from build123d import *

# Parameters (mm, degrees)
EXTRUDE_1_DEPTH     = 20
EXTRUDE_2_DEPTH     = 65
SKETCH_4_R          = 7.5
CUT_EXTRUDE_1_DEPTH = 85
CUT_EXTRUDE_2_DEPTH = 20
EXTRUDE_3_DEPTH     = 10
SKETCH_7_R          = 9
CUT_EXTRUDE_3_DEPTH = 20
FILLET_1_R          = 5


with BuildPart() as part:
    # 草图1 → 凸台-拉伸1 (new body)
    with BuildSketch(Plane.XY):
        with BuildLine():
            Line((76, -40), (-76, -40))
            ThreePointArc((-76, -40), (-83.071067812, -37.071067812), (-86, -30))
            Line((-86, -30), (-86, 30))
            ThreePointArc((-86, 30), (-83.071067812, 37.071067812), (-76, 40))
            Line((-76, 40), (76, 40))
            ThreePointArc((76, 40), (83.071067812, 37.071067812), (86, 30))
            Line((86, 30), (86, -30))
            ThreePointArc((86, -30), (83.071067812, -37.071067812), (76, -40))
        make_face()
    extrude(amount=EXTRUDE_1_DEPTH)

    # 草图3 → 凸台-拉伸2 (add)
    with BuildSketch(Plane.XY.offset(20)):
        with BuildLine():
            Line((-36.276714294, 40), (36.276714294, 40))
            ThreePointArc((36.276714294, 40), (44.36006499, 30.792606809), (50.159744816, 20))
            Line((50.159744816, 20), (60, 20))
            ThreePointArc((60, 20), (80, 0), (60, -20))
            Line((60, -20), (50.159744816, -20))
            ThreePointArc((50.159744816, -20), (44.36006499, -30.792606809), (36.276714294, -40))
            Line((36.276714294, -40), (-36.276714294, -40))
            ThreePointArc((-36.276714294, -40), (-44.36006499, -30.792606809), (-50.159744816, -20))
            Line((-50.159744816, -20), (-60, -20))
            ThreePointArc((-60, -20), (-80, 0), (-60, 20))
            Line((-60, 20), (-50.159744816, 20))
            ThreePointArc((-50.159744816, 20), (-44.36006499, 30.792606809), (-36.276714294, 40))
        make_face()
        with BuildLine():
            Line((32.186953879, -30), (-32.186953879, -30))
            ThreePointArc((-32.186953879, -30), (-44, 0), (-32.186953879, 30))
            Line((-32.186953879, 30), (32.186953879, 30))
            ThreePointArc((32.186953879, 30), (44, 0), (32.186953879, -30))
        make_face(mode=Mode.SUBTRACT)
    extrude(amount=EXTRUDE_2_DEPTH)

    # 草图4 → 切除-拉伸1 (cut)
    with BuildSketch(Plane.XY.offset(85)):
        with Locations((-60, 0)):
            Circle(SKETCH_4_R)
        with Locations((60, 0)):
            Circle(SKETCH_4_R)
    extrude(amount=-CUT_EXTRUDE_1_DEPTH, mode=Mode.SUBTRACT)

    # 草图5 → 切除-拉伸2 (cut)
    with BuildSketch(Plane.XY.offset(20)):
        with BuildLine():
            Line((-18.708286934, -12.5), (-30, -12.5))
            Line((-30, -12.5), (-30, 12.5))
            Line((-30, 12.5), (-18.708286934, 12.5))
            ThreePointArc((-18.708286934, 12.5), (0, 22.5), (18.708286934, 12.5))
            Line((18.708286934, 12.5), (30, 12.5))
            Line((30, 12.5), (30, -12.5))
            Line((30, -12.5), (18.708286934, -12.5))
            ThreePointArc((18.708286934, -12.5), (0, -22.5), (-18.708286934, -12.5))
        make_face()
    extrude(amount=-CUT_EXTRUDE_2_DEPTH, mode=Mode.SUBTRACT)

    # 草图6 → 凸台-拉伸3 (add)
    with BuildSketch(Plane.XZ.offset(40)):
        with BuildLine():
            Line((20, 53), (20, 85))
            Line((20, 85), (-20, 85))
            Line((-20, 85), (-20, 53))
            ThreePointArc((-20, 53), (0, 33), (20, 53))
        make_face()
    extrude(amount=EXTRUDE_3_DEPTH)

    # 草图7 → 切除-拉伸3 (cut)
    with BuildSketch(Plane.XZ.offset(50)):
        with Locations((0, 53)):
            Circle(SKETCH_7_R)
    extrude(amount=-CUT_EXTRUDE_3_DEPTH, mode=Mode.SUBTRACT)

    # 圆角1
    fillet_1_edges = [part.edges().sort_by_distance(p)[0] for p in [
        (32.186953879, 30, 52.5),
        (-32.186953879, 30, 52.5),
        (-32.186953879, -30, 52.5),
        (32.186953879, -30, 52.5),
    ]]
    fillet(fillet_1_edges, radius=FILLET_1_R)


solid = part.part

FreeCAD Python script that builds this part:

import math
import FreeCAD as App
import Part
import Sketcher
Q = App.Units.Quantity


def edges_at(feature, points):
    """Names of the edges that pass closest to the given points."""
    edges = feature.Shape.Edges
    near = lambda p: min(range(len(edges)), key=lambda i: edges[i].distToShape(Part.Vertex(*p))[0])
    return sorted({f"Edge{near(p) + 1}" for p in points})

doc = App.newDocument("Part")
body = doc.addObject("PartDesign::Body", "Body")

# Sketch on XY plane
sketch1 = doc.addObject("Sketcher::SketchObject", "Sketch")
body.addObject(sketch1)
sketch1.AttachmentSupport = (doc.XY_Plane, [""])
sketch1.MapMode = "FlatFace"
sketch1.addGeometry([
    Part.LineSegment(App.Vector(-76, -40, 0), App.Vector(76, -40, 0)),  # 0
    Part.ArcOfCircle(Part.Circle(App.Vector(76, -30, 0), App.Vector(0, 0, 1), 10), math.radians(-90), math.radians(0)),  # 1
    Part.LineSegment(App.Vector(86, -30, 0), App.Vector(86, 30, 0)),  # 2
    Part.ArcOfCircle(Part.Circle(App.Vector(76, 30, 0), App.Vector(0, 0, 1), 10), math.radians(0), math.radians(90)),  # 3
    Part.LineSegment(App.Vector(76, 40, 0), App.Vector(-76, 40, 0)),  # 4
    Part.ArcOfCircle(Part.Circle(App.Vector(-76, 30, 0), App.Vector(0, 0, 1), 10), math.radians(90), math.radians(180)),  # 5
    Part.LineSegment(App.Vector(-86, 30, 0), App.Vector(-86, -30, 0)),  # 6
    Part.ArcOfCircle(Part.Circle(App.Vector(-76, -30, 0), App.Vector(0, 0, 1), 10), math.radians(180), math.radians(270)),  # 7
], False)
sketch1.addConstraint([
    Sketcher.Constraint("Tangent", 0, 2, 1, 1),
    Sketcher.Constraint("Tangent", 1, 2, 2, 1),
    Sketcher.Constraint("Tangent", 2, 2, 3, 1),
    Sketcher.Constraint("Tangent", 3, 2, 4, 1),
    Sketcher.Constraint("Tangent", 4, 2, 5, 1),
    Sketcher.Constraint("Tangent", 5, 2, 6, 1),
    Sketcher.Constraint("Tangent", 6, 2, 7, 1),
    Sketcher.Constraint("Tangent", 7, 2, 0, 1),
    Sketcher.Constraint("Horizontal", 0),
    Sketcher.Constraint("Vertical", 2),
    Sketcher.Constraint("Horizontal", 4),
    Sketcher.Constraint("Vertical", 6),
    Sketcher.Constraint("Equal", 1, 3),
    Sketcher.Constraint("Equal", 3, 5),
    Sketcher.Constraint("Equal", 5, 7),
    Sketcher.Constraint("Symmetric", 1, 3, 5, 3, -1, 1),
    Sketcher.Constraint("Radius", 1, Q("10 mm")),
    Sketcher.Constraint("DistanceX", 0, 1, 0, 2, Q("152 mm")),
    Sketcher.Constraint("DistanceY", 2, 1, 2, 2, Q("60 mm")),
])
pad1 = doc.addObject("PartDesign::Pad", "Pad")
body.addObject(pad1)
pad1.Profile = sketch1
pad1.Length = 20

# Sketch on XY plane
sketch2 = doc.addObject("Sketcher::SketchObject", "Sketch001")
body.addObject(sketch2)
sketch2.AttachmentSupport = (doc.XY_Plane, [""])
sketch2.MapMode = "FlatFace"
sketch2.AttachmentOffset = App.Placement(App.Vector(0, 0, 20), App.Rotation())
sketch2.addGeometry([
    Part.LineSegment(App.Vector(36, 40, 0), App.Vector(-36, 40, 0)),  # 0
    Part.ArcOfCircle(Part.Circle(App.Vector(0, 0, 0), App.Vector(0, 0, 1), 54), math.radians(132), math.radians(158)),  # 1
    Part.LineSegment(App.Vector(-50, 20, 0), App.Vector(-60, 20, 0)),  # 2
    Part.ArcOfCircle(Part.Circle(App.Vector(-60, 0, 0), App.Vector(0, 0, 1), 20), math.radians(90), math.radians(270)),  # 3
    Part.LineSegment(App.Vector(-60, -20, 0), App.Vector(-50, -20, 0)),  # 4
    Part.ArcOfCircle(Part.Circle(App.Vector(0, 0, 0), App.Vector(0, 0, 1), 54), math.radians(-158), math.radians(-132)),  # 5
    Part.LineSegment(App.Vector(-36, -40, 0), App.Vector(36, -40, 0)),  # 6
    Part.ArcOfCircle(Part.Circle(App.Vector(0, 0, 0), App.Vector(0, 0, 1), 54), math.radians(-48), math.radians(-22)),  # 7
    Part.LineSegment(App.Vector(50, -20, 0), App.Vector(60, -20, 0)),  # 8
    Part.ArcOfCircle(Part.Circle(App.Vector(60, 0, 0), App.Vector(0, 0, 1), 20), math.radians(-90), math.radians(90)),  # 9
    Part.LineSegment(App.Vector(60, 20, 0), App.Vector(50, 20, 0)),  # 10
    Part.ArcOfCircle(Part.Circle(App.Vector(0, 0, 0), App.Vector(0, 0, 1), 54), math.radians(22), math.radians(48)),  # 11
    Part.LineSegment(App.Vector(32, -30, 0), App.Vector(-32, -30, 0)),  # 12
    Part.ArcOfCircle(Part.Circle(App.Vector(0, 0, 0), App.Vector(0, 0, 1), 44), math.radians(137), math.radians(223)),  # 13
    Part.LineSegment(App.Vector(-32, 30, 0), App.Vector(32, 30, 0)),  # 14
    Part.ArcOfCircle(Part.Circle(App.Vector(0, 0, 0), App.Vector(0, 0, 1), 44), math.radians(-43), math.radians(43)),  # 15
], False)
sketch2.addConstraint([
    Sketcher.Constraint("Coincident", 0, 2, 1, 1),
    Sketcher.Constraint("Coincident", 1, 2, 2, 1),
    Sketcher.Constraint("Tangent", 2, 2, 3, 1),
    Sketcher.Constraint("Tangent", 3, 2, 4, 1),
    Sketcher.Constraint("Coincident", 4, 2, 5, 1),
    Sketcher.Constraint("Coincident", 5, 2, 6, 1),
    Sketcher.Constraint("Coincident", 6, 2, 7, 1),
    Sketcher.Constraint("Coincident", 7, 2, 8, 1),
    Sketcher.Constraint("Tangent", 8, 2, 9, 1),
    Sketcher.Constraint("Tangent", 9, 2, 10, 1),
    Sketcher.Constraint("Coincident", 10, 2, 11, 1),
    Sketcher.Constraint("Coincident", 11, 2, 0, 1),
    Sketcher.Constraint("Coincident", 12, 2, 13, 2),
    Sketcher.Constraint("Coincident", 13, 1, 14, 1),
    Sketcher.Constraint("Coincident", 14, 2, 15, 2),
    Sketcher.Constraint("Coincident", 15, 1, 12, 1),
    Sketcher.Constraint("Horizontal", 0),
    Sketcher.Constraint("Horizontal", 2),
    Sketcher.Constraint("Horizontal", 4),
    Sketcher.Constraint("Horizontal", 6),
    Sketcher.Constraint("Horizontal", 8),
    Sketcher.Constraint("Horizontal", 10),
    Sketcher.Constraint("Horizontal", 12),
    Sketcher.Constraint("Horizontal", 14),
    Sketcher.Constraint("Coincident", 1, 3, -1, 1),
    Sketcher.Constraint("Coincident", 5, 3, -1, 1),
    Sketcher.Constraint("Coincident", 7, 3, -1, 1),
    Sketcher.Constraint("Coincident", 11, 3, -1, 1),
    Sketcher.Constraint("Coincident", 13, 3, -1, 1),
    Sketcher.Constraint("Coincident", 15, 3, -1, 1),
    Sketcher.Constraint("Equal", 1, 5),
    Sketcher.Constraint("Equal", 5, 7),
    Sketcher.Constraint("Equal", 3, 9),
    Sketcher.Constraint("Equal", 7, 11),
    Sketcher.Constraint("Equal", 13, 15),
    Sketcher.Constraint("Symmetric", 3, 3, 9, 3, -1, 1),
    Sketcher.Constraint("PointOnObject", 3, 3, -1),
    Sketcher.Constraint("Vertical", 0, 2, 5, 2),
    Sketcher.Constraint("Vertical", 12, 2, 13, 1),
    Sketcher.Constraint("Radius", 1, Q("54 mm")),
    Sketcher.Constraint("Radius", 3, Q("20 mm")),
    Sketcher.Constraint("Radius", 13, Q("44 mm")),
    Sketcher.Constraint("DistanceX", 3, 3, -1, 1, Q("60 mm")),
    Sketcher.Constraint("DistanceY", -1, 1, 0, 2, Q("40 mm")),
    Sketcher.Constraint("DistanceY", 12, 2, -1, 1, Q("30 mm")),
])
pad2 = doc.addObject("PartDesign::Pad", "Pad001")
body.addObject(pad2)
pad2.Profile = sketch2
pad2.Length = 65

# Sketch on XY plane
sketch3 = doc.addObject("Sketcher::SketchObject", "Sketch002")
body.addObject(sketch3)
sketch3.AttachmentSupport = (doc.XY_Plane, [""])
sketch3.MapMode = "FlatFace"
sketch3.AttachmentOffset = App.Placement(App.Vector(0, 0, 85), App.Rotation())
sketch3.addGeometry([
    Part.Circle(App.Vector(-60, 0, 0), App.Vector(0, 0, 1), 8),
    Part.Circle(App.Vector(60, 0, 0), App.Vector(0, 0, 1), 8),
], False)
sketch3.addConstraint([
    Sketcher.Constraint("Equal", 0, 1),
    Sketcher.Constraint("Symmetric", 0, 3, 1, 3, -1, 1),
    Sketcher.Constraint("PointOnObject", 0, 3, -1),
    Sketcher.Constraint("Diameter", 0, Q("15 mm")),
    Sketcher.Constraint("DistanceX", 0, 3, -1, 1, Q("60 mm")),
])
pocket1 = doc.addObject("PartDesign::Pocket", "Pocket")
body.addObject(pocket1)
pocket1.Profile = sketch3
pocket1.Length = 85

# Sketch on XY plane
sketch4 = doc.addObject("Sketcher::SketchObject", "Sketch003")
body.addObject(sketch4)
sketch4.AttachmentSupport = (doc.XY_Plane, [""])
sketch4.MapMode = "FlatFace"
sketch4.AttachmentOffset = App.Placement(App.Vector(0, 0, 20), App.Rotation())
sketch4.addGeometry([
    Part.LineSegment(App.Vector(-30, -12, 0), App.Vector(-19, -12, 0)),  # 0
    Part.ArcOfCircle(Part.Circle(App.Vector(0, 0, 0), App.Vector(0, 0, 1), 22), math.radians(-146), math.radians(-34)),  # 1
    Part.LineSegment(App.Vector(19, -12, 0), App.Vector(30, -12, 0)),  # 2
    Part.LineSegment(App.Vector(30, -12, 0), App.Vector(30, 12, 0)),  # 3
    Part.LineSegment(App.Vector(30, 12, 0), App.Vector(19, 12, 0)),  # 4
    Part.ArcOfCircle(Part.Circle(App.Vector(0, 0, 0), App.Vector(0, 0, 1), 22), math.radians(34), math.radians(146)),  # 5
    Part.LineSegment(App.Vector(-19, 12, 0), App.Vector(-30, 12, 0)),  # 6
    Part.LineSegment(App.Vector(-30, 12, 0), App.Vector(-30, -12, 0)),  # 7
], False)
sketch4.addConstraint([
    Sketcher.Constraint("Coincident", 0, 2, 1, 1),
    Sketcher.Constraint("Coincident", 1, 2, 2, 1),
    Sketcher.Constraint("Coincident", 2, 2, 3, 1),
    Sketcher.Constraint("Coincident", 3, 2, 4, 1),
    Sketcher.Constraint("Coincident", 4, 2, 5, 1),
    Sketcher.Constraint("Coincident", 5, 2, 6, 1),
    Sketcher.Constraint("Coincident", 6, 2, 7, 1),
    Sketcher.Constraint("Coincident", 7, 2, 0, 1),
    Sketcher.Constraint("Horizontal", 0),
    Sketcher.Constraint("Horizontal", 2),
    Sketcher.Constraint("Vertical", 3),
    Sketcher.Constraint("Horizontal", 4),
    Sketcher.Constraint("Horizontal", 6),
    Sketcher.Constraint("Vertical", 7),
    Sketcher.Constraint("Coincident", 1, 3, -1, 1),
    Sketcher.Constraint("Coincident", 5, 3, -1, 1),
    Sketcher.Constraint("Equal", 1, 5),
    Sketcher.Constraint("Symmetric", 2, 2, 6, 2, -1, 1),
    Sketcher.Constraint("Horizontal", 0, 2, 1, 2),
    Sketcher.Constraint("Horizontal", 4, 2, 5, 2),
    Sketcher.Constraint("Radius", 1, Q("22.5 mm")),
    Sketcher.Constraint("DistanceY", 3, 1, 3, 2, Q("25 mm")),
    Sketcher.Constraint("DistanceX", -1, 1, 2, 2, Q("30 mm")),
])
pocket2 = doc.addObject("PartDesign::Pocket", "Pocket001")
body.addObject(pocket2)
pocket2.Profile = sketch4
pocket2.Length = 20

# Sketch on XZ plane
sketch5 = doc.addObject("Sketcher::SketchObject", "Sketch004")
body.addObject(sketch5)
sketch5.AttachmentSupport = (doc.XZ_Plane, [""])
sketch5.MapMode = "FlatFace"
sketch5.AttachmentOffset = App.Placement(App.Vector(0, 0, 40), App.Rotation())
sketch5.addGeometry([
    Part.LineSegment(App.Vector(20, 53, 0), App.Vector(20, 85, 0)),
    Part.LineSegment(App.Vector(20, 85, 0), App.Vector(-20, 85, 0)),
    Part.LineSegment(App.Vector(-20, 85, 0), App.Vector(-20, 53, 0)),
    Part.ArcOfCircle(Part.Circle(App.Vector(0, 53, 0), App.Vector(0, 0, 1), 20), math.radians(180), math.radians(360)),
], False)
sketch5.addConstraint([
    Sketcher.Constraint("Coincident", 0, 2, 1, 1),
    Sketcher.Constraint("Coincident", 1, 2, 2, 1),
    Sketcher.Constraint("Tangent", 2, 2, 3, 1),
    Sketcher.Constraint("Tangent", 3, 2, 0, 1),
    Sketcher.Constraint("Vertical", 0),
    Sketcher.Constraint("Horizontal", 1),
    Sketcher.Constraint("Vertical", 2),
    Sketcher.Constraint("PointOnObject", 3, 3, -2),
    Sketcher.Constraint("Radius", 3, Q("20 mm")),
    Sketcher.Constraint("DistanceY", 0, 1, 0, 2, Q("32 mm")),
    Sketcher.Constraint("DistanceY", -1, 1, 3, 3, Q("53 mm")),
])
pad3 = doc.addObject("PartDesign::Pad", "Pad002")
body.addObject(pad3)
pad3.Profile = sketch5
pad3.Length = 10

# Sketch on XZ plane
sketch6 = doc.addObject("Sketcher::SketchObject", "Sketch005")
body.addObject(sketch6)
sketch6.AttachmentSupport = (doc.XZ_Plane, [""])
sketch6.MapMode = "FlatFace"
sketch6.AttachmentOffset = App.Placement(App.Vector(0, 0, 50), App.Rotation())
sketch6.addGeometry(Part.Circle(App.Vector(0, 53, 0), App.Vector(0, 0, 1), 9), False)
sketch6.addConstraint([
    Sketcher.Constraint("PointOnObject", 0, 3, -2),
    Sketcher.Constraint("Diameter", 0, Q("18 mm")),
    Sketcher.Constraint("DistanceY", -1, 1, 0, 3, Q("53 mm")),
])
pocket3 = doc.addObject("PartDesign::Pocket", "Pocket002")
body.addObject(pocket3)
pocket3.Profile = sketch6
pocket3.Length = 20
doc.recompute()

fillet = doc.addObject("PartDesign::Fillet", "Fillet")
body.addObject(fillet)
fillet.Base = (pocket3, edges_at(pocket3, [
    (32.187, 30, 52.5),
    (-32.187, 30, 52.5),
    (-32.187, -30, 52.5),
    (32.187, -30, 52.5),
]))
fillet.Radius = 5

doc.recompute()
